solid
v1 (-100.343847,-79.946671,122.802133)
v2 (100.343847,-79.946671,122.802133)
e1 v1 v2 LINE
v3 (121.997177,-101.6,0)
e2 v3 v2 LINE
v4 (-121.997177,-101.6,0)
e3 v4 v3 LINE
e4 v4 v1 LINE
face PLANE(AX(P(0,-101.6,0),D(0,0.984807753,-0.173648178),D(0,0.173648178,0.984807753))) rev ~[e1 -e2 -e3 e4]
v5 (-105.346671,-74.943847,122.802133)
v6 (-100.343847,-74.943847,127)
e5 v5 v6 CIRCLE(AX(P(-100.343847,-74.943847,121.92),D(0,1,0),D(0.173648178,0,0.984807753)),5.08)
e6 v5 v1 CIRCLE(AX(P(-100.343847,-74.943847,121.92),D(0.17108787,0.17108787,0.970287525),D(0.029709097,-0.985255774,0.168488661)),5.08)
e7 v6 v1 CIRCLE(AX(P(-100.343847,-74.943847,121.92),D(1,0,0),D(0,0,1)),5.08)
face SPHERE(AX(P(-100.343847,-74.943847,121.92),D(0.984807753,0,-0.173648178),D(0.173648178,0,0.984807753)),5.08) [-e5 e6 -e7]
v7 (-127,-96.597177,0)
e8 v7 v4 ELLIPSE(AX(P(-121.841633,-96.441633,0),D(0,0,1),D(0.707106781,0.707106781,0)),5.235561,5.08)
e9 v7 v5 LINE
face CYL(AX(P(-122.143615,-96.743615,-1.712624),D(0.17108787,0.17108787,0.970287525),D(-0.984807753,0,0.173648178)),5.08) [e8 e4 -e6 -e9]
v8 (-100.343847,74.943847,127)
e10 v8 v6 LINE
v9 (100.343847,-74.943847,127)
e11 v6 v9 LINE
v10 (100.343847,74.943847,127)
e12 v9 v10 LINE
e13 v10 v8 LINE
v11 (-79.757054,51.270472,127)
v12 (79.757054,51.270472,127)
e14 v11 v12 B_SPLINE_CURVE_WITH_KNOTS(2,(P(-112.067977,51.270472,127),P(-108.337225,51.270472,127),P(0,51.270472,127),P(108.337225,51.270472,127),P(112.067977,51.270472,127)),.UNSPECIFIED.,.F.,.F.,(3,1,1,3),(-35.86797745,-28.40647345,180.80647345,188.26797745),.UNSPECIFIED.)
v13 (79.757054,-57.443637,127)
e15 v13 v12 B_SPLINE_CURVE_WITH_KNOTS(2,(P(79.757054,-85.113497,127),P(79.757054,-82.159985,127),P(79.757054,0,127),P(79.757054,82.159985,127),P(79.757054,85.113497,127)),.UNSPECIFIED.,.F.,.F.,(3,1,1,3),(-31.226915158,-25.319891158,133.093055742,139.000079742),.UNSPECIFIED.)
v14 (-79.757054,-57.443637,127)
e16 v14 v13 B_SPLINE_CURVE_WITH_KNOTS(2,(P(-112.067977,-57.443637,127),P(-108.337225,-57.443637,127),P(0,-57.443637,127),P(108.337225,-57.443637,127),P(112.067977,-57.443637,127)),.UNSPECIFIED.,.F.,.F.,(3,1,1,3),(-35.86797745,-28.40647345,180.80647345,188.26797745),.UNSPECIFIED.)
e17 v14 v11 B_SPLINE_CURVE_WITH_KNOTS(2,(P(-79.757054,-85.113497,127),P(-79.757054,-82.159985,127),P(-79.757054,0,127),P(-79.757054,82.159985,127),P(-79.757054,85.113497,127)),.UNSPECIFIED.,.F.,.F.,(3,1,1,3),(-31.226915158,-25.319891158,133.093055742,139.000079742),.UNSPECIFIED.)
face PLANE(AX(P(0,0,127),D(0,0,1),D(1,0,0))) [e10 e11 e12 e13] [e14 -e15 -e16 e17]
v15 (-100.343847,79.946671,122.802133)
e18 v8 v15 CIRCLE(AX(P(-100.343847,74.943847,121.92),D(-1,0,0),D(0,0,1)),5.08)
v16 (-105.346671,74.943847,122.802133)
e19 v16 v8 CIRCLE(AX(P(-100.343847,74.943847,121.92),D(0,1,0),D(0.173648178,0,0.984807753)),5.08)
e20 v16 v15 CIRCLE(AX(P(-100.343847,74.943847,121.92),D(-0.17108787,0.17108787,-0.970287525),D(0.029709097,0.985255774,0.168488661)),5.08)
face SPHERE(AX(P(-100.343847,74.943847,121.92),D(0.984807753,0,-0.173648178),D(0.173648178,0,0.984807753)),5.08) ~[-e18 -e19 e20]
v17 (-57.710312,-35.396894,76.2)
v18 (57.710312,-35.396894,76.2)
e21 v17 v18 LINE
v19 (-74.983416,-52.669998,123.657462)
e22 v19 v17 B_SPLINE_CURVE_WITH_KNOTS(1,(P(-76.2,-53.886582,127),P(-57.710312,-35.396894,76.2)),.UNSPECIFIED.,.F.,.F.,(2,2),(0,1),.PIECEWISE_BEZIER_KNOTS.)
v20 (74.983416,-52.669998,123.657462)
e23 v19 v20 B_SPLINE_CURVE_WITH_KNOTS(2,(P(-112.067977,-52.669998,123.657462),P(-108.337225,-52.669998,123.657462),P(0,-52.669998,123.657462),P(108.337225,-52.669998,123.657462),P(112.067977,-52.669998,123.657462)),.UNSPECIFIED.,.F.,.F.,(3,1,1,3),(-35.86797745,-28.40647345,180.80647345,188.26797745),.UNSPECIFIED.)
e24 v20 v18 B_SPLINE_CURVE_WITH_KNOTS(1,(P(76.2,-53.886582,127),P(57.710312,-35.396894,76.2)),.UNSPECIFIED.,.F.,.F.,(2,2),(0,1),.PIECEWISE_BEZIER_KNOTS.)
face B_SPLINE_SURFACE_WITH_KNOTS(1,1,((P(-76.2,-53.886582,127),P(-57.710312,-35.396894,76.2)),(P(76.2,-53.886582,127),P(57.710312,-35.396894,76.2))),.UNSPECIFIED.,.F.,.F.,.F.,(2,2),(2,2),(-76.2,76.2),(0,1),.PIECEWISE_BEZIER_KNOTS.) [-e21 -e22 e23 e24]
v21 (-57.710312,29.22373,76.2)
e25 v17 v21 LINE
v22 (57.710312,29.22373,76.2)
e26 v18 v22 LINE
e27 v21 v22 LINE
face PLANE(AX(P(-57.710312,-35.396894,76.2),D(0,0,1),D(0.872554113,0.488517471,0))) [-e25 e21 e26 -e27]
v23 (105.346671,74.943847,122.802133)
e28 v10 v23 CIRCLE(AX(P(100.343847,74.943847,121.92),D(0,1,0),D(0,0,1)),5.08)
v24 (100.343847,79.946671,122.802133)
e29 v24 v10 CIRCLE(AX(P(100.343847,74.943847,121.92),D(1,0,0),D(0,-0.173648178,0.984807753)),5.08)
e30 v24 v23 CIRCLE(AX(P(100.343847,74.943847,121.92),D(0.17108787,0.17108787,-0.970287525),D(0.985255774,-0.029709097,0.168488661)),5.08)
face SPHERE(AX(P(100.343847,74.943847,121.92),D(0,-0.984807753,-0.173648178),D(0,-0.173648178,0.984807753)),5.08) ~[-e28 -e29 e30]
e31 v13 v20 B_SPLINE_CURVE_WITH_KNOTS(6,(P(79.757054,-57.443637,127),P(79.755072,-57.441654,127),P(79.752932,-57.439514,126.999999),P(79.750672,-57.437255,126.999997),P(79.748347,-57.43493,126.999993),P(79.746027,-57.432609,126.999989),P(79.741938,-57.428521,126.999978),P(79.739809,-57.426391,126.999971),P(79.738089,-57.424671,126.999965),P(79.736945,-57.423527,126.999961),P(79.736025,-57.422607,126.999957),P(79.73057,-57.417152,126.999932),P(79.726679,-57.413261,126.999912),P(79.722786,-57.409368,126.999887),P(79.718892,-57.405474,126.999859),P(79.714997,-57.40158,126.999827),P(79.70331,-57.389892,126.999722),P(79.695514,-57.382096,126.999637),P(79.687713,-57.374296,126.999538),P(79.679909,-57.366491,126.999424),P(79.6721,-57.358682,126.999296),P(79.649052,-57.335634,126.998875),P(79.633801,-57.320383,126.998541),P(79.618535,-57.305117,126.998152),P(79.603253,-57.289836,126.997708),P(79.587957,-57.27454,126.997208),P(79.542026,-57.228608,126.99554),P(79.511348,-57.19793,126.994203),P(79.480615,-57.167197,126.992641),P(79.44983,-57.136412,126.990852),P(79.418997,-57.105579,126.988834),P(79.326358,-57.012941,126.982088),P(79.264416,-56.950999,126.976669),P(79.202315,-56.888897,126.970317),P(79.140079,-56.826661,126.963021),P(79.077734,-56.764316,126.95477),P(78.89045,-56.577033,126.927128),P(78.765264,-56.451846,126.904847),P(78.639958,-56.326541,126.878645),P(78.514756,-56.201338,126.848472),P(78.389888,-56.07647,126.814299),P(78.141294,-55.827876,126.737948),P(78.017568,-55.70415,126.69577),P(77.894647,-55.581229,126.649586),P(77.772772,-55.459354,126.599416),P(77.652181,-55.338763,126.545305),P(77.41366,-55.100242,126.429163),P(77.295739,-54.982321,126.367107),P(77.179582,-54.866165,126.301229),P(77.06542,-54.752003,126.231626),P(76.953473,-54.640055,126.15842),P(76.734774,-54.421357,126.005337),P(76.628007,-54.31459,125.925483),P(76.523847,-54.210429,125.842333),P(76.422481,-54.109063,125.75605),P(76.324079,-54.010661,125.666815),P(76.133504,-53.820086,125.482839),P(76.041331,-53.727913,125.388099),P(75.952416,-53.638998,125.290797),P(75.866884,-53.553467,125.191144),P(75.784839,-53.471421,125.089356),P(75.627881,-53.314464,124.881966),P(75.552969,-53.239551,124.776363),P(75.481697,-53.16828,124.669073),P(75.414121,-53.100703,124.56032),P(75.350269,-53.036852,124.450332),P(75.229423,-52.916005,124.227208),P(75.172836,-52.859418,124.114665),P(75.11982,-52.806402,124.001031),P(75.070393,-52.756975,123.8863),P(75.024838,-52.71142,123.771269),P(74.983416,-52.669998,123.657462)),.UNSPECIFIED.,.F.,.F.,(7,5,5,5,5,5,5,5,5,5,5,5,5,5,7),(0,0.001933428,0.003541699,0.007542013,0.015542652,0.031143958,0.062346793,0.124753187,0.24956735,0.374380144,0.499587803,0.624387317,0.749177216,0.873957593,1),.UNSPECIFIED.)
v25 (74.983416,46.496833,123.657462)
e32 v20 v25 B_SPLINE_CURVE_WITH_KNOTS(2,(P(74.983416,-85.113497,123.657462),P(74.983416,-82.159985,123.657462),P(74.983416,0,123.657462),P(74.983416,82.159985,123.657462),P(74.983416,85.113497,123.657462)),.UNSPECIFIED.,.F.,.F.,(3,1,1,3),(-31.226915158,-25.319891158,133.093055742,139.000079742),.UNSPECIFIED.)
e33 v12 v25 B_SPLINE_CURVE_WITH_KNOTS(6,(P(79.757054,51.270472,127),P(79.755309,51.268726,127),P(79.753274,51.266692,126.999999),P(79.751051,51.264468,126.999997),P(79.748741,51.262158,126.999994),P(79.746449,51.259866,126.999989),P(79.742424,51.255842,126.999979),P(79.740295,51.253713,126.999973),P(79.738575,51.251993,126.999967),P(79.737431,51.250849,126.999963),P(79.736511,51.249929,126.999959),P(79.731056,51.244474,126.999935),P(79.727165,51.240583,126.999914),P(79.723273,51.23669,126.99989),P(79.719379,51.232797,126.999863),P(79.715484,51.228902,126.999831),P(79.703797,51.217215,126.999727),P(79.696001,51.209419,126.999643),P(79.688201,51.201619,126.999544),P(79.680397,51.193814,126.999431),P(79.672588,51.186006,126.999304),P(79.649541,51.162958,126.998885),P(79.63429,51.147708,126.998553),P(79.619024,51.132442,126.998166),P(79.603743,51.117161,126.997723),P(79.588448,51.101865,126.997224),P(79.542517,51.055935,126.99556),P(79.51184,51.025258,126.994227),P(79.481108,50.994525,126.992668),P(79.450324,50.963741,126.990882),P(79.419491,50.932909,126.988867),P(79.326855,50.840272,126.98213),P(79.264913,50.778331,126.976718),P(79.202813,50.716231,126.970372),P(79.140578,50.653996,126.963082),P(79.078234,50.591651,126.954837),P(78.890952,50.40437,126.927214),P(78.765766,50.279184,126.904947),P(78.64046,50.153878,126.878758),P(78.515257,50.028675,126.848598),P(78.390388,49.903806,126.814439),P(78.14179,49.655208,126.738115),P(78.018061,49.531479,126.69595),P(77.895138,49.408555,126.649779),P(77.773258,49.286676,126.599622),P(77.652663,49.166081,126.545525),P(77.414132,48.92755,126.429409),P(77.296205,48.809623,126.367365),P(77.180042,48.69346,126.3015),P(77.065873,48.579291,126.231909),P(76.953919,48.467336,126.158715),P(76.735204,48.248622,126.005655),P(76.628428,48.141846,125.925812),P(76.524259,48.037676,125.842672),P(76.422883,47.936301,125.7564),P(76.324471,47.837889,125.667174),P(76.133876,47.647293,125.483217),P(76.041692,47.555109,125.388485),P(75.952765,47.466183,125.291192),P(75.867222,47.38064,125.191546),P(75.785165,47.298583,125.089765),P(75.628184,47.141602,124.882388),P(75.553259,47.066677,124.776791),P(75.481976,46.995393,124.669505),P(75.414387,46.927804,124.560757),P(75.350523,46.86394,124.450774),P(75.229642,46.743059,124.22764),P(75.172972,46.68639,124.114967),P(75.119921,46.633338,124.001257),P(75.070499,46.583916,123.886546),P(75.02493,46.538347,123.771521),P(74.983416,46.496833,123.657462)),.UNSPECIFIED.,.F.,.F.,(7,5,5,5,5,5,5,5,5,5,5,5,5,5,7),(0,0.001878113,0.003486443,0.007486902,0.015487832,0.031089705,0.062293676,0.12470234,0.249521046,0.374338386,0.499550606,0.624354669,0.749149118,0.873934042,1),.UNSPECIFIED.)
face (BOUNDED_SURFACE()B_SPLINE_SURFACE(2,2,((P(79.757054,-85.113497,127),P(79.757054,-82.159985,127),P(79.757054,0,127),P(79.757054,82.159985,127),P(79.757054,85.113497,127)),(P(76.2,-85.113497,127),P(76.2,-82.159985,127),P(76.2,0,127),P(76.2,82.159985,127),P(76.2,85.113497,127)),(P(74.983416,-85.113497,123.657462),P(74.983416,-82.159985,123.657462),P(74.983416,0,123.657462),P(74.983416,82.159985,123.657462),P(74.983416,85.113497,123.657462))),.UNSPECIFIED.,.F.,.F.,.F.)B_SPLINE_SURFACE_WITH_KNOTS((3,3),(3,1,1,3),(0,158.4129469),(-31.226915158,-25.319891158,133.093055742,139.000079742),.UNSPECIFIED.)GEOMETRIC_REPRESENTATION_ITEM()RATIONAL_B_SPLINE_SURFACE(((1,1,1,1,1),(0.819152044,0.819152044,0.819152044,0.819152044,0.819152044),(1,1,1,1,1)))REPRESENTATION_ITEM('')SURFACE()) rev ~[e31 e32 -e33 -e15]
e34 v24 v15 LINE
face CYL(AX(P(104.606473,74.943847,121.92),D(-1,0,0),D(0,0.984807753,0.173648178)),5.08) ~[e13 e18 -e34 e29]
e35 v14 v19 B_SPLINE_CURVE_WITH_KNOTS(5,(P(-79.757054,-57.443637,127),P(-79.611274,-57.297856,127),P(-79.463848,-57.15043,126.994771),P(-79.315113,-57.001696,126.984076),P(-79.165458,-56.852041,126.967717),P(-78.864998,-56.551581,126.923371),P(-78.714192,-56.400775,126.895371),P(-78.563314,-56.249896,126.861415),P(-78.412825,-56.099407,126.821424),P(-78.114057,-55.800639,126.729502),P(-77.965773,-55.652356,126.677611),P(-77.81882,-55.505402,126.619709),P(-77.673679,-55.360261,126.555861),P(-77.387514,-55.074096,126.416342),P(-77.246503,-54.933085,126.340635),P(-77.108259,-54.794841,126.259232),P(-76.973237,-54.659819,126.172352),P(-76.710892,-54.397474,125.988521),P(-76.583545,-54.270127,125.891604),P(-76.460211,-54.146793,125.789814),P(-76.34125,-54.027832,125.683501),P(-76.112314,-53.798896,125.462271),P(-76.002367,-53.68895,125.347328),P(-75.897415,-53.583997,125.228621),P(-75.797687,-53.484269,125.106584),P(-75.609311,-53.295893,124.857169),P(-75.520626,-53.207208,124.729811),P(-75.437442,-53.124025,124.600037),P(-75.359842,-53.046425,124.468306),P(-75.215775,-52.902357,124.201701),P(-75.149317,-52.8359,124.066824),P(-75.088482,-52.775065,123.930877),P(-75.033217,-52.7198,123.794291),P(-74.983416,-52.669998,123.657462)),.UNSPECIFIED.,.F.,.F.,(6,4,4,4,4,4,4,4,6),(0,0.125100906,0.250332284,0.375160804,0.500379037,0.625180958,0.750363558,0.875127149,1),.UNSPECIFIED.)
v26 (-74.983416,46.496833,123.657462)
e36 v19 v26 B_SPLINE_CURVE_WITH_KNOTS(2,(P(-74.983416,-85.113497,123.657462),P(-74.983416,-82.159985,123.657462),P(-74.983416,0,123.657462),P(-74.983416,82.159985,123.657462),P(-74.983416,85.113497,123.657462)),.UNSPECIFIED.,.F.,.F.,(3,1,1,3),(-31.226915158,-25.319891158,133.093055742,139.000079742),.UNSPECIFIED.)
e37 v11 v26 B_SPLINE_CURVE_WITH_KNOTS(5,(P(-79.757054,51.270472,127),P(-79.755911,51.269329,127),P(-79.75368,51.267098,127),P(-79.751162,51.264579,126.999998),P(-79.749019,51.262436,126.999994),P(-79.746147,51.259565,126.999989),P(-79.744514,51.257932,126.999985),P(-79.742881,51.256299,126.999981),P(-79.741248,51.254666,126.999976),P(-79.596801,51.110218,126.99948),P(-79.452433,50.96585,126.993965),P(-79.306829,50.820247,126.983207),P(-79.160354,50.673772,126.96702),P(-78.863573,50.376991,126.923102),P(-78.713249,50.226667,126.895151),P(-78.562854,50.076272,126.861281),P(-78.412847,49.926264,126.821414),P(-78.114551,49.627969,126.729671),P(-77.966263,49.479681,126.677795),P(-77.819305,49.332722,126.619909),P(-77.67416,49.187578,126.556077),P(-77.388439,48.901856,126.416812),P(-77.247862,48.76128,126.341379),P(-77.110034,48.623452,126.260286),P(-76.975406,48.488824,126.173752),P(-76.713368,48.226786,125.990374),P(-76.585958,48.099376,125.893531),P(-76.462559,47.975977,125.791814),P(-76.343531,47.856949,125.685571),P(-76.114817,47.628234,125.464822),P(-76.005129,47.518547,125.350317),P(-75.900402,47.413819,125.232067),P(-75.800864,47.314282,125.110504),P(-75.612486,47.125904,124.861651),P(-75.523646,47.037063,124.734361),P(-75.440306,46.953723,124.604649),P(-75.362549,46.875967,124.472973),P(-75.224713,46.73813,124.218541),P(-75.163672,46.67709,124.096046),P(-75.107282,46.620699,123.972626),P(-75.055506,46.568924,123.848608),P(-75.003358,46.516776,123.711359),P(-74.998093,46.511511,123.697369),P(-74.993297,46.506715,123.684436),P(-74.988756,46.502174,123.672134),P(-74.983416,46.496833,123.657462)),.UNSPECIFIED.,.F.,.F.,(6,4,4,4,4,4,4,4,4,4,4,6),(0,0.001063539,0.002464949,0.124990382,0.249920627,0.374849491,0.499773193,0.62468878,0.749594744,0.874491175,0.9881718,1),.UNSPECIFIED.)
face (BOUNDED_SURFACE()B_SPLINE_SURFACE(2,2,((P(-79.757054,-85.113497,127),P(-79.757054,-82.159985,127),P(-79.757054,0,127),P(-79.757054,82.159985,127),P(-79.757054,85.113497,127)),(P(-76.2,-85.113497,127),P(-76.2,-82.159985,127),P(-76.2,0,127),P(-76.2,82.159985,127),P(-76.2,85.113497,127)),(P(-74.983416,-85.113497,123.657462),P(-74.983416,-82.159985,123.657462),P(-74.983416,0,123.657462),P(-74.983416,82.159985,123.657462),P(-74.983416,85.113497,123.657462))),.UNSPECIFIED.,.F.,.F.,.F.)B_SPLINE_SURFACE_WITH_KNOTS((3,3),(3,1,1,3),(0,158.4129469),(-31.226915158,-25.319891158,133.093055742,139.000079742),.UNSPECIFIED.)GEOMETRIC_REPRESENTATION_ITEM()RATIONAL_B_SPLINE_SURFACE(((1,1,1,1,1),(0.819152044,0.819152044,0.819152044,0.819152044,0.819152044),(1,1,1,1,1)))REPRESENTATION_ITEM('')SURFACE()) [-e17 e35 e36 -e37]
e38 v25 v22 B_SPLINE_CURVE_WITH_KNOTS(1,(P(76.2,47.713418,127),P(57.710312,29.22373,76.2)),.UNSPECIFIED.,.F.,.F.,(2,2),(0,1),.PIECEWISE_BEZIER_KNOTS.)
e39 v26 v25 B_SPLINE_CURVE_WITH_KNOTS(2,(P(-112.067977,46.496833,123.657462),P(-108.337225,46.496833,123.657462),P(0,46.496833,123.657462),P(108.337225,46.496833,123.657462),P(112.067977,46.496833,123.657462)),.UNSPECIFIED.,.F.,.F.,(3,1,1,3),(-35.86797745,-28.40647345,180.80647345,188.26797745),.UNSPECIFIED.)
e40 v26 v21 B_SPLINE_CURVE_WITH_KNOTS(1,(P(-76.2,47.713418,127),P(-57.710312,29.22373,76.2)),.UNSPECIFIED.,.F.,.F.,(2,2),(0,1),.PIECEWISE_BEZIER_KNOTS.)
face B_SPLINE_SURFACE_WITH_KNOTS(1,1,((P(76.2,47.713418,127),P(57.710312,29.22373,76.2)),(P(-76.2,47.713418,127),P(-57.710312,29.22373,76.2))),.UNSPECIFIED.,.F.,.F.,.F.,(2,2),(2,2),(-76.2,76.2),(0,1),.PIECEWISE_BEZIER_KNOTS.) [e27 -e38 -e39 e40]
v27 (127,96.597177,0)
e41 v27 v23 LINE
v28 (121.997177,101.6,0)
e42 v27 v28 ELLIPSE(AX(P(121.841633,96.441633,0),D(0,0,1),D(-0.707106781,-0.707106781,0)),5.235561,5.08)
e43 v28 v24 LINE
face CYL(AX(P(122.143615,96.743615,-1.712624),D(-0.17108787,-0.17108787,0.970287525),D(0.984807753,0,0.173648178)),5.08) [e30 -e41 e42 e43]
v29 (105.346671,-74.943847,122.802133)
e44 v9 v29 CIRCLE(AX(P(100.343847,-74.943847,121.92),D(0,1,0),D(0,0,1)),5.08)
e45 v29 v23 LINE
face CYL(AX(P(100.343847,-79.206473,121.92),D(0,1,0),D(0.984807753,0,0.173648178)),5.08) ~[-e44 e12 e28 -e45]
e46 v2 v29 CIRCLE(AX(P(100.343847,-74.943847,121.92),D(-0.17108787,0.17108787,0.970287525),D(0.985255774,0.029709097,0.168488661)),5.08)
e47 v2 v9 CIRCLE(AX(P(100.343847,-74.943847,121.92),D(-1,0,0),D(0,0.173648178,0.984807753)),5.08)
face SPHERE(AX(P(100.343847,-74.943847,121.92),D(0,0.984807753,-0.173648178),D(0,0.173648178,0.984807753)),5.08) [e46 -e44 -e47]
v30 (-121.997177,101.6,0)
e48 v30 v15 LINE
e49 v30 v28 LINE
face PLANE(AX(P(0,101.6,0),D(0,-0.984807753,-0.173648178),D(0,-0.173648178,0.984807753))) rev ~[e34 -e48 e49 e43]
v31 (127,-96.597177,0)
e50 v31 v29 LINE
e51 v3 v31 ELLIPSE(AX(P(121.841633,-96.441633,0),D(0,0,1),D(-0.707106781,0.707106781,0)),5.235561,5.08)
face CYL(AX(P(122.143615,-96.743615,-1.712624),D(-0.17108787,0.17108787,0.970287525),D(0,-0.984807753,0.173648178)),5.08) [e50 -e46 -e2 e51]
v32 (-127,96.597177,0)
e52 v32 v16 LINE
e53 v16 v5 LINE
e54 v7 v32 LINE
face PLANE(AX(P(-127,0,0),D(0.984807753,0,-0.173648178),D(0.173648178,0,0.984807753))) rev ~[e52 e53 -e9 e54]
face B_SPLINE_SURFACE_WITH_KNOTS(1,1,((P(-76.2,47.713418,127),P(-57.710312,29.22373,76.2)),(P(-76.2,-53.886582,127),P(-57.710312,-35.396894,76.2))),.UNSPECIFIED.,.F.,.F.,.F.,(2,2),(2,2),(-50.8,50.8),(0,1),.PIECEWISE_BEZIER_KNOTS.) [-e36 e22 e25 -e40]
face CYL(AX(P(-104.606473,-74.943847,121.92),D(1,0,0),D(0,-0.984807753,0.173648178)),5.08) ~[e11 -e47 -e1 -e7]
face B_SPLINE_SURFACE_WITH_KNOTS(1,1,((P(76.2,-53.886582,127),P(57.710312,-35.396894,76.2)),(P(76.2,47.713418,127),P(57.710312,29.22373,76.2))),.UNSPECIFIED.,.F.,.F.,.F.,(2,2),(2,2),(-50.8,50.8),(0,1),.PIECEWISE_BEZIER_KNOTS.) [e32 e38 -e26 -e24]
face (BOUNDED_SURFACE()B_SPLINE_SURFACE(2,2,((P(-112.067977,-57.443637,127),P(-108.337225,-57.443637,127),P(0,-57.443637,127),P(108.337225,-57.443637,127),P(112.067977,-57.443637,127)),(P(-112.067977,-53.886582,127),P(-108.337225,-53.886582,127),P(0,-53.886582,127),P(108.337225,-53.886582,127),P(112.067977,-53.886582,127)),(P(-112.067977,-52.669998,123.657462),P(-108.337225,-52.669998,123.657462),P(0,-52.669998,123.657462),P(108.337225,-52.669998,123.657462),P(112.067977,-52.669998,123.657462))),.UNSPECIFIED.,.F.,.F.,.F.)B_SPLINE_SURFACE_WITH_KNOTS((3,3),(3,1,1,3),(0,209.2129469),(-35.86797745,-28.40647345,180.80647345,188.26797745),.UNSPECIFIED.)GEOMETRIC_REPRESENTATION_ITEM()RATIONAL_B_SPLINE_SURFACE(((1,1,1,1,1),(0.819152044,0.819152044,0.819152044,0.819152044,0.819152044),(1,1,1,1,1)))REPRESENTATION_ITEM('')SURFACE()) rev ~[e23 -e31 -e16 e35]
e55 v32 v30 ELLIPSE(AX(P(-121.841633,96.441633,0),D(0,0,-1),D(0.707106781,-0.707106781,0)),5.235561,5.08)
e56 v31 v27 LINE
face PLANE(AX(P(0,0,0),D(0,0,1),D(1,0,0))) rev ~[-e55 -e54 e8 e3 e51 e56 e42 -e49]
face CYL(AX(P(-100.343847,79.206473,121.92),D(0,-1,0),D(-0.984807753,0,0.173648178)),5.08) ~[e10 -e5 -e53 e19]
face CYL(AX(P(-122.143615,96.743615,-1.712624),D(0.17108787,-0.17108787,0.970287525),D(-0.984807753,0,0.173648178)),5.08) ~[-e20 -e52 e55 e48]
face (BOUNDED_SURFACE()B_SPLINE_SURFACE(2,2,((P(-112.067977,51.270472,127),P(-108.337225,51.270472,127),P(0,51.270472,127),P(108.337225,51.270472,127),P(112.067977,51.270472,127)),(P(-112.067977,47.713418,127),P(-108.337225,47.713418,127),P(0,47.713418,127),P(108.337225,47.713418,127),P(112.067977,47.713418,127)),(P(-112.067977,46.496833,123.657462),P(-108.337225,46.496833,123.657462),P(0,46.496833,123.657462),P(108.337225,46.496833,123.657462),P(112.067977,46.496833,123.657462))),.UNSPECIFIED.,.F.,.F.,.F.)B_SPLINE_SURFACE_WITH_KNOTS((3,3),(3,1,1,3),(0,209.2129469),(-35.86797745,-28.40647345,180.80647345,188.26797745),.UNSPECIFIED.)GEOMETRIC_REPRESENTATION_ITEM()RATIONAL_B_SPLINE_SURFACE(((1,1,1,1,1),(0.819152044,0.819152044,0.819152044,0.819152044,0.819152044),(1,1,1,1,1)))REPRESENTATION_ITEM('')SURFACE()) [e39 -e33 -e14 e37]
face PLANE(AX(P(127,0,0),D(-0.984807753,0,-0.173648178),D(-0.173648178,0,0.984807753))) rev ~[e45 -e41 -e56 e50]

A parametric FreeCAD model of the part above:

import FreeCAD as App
import Part
import Sketcher

V = App.Vector
Q = App.Units.Quantity


def edges_at(feature, points):
    """Names of the edges that pass closest to the given points."""
    edges = feature.Shape.Edges
    near = lambda p: min(range(len(edges)), key=lambda i: edges[i].distToShape(Part.Vertex(*p))[0])
    return sorted({f"Edge{near(p) + 1}" for p in points})


def add_polygon(sketch, points):
    """Adds a closed chain of lines whose ends are joined by coincident constraints."""
    first, n = sketch.GeometryCount, len(points)
    for a, b in zip(points, points[1:] + points[:1]):
        sketch.addGeometry(Part.LineSegment(App.Vector(*a, 0), App.Vector(*b, 0)), False)
    for i in range(n):
        sketch.addConstraint(Sketcher.Constraint("Coincident", first + i, 2, first + (i + 1) % n, 1))

doc = App.newDocument("Part")
body = doc.addObject("PartDesign::Body", "Body")

# Sketch on XY plane
sketch1 = body.newObject("Sketcher::SketchObject", "Sketch")
sketch1.AttachmentSupport = (doc.getObject("XY_Plane"), [""])
sketch1.MapMode = "FlatFace"
add_polygon(sketch1, [(-127, 102), (-127, -102), (127, -102), (127, 102)])  # lines 0-3
sketch1.addConstraint(Sketcher.Constraint("Vertical", 0))
sketch1.addConstraint(Sketcher.Constraint("Horizontal", 1))
sketch1.addConstraint(Sketcher.Constraint("Vertical", 2))
sketch1.addConstraint(Sketcher.Constraint("Horizontal", 3))
sketch1.addConstraint(Sketcher.Constraint("Symmetric", 0, 2, 2, 2, -1, 1))
sketch1.addConstraint(Sketcher.Constraint("DistanceX", 1, 1, 1, 2, Q("10 in")))
sketch1.addConstraint(Sketcher.Constraint("DistanceY", 0, 2, 0, 1, Q("8 in")))
pad1 = body.newObject("PartDesign::Pad", "Pad")
pad1.Profile = sketch1
pad1.Length = Q("5 in")
pad1.TaperAngle = -10

# Sketch on XY plane
sketch2 = body.newObject("Sketcher::SketchObject", "Sketch001")
sketch2.AttachmentSupport = (doc.getObject("XY_Plane"), [""])
sketch2.MapMode = "FlatFace"
sketch2.AttachmentOffset = App.Placement(V(0, 0, 5 * 25.4), App.Rotation())
add_polygon(sketch2, [(-76, 48), (-76, -54), (76, -54), (76, 48)])  # lines 0-3
sketch2.addConstraint(Sketcher.Constraint("Vertical", 0))
sketch2.addConstraint(Sketcher.Constraint("Horizontal", 1))
sketch2.addConstraint(Sketcher.Constraint("Vertical", 2))
sketch2.addConstraint(Sketcher.Constraint("Horizontal", 3))
sketch2.addConstraint(Sketcher.Constraint("DistanceX", 1, 1, 1, 2, Q("6 in")))
sketch2.addConstraint(Sketcher.Constraint("DistanceY", 0, 2, 0, 1, Q("4 in")))
sketch2.addConstraint(Sketcher.Constraint("DistanceX", 0, 2, -1, 1, Q("3 in")))
sketch2.addConstraint(Sketcher.Constraint("DistanceY", 0, 2, -1, 1, Q("53.886582 mm")))
pocket1 = body.newObject("PartDesign::Pocket", "Pocket")
pocket1.Profile = sketch2
pocket1.Length = Q("2 in")
pocket1.TaperAngle = -20
doc.recompute()

fillet = body.newObject("PartDesign::Fillet", "Fillet")
fillet.Base = (pocket1, edges_at(pocket1, [
    (104.606, 0, 127),
    (0, -79.206, 127),
    (0, 79.206, 127),
    (-104.606, 0, 127),
    (76.2, -3.087, 127),
    (0, 47.713, 127),
    (-76.2, -3.087, 127),
    (0, -53.887, 127),
    (-115.803, 90.403, 63.5),
    (115.803, 90.403, 63.5),
    (115.803, -90.403, 63.5),
    (-115.803, -90.403, 63.5),
]))
fillet.Radius = Q("0.2 in")

doc.recompute()
